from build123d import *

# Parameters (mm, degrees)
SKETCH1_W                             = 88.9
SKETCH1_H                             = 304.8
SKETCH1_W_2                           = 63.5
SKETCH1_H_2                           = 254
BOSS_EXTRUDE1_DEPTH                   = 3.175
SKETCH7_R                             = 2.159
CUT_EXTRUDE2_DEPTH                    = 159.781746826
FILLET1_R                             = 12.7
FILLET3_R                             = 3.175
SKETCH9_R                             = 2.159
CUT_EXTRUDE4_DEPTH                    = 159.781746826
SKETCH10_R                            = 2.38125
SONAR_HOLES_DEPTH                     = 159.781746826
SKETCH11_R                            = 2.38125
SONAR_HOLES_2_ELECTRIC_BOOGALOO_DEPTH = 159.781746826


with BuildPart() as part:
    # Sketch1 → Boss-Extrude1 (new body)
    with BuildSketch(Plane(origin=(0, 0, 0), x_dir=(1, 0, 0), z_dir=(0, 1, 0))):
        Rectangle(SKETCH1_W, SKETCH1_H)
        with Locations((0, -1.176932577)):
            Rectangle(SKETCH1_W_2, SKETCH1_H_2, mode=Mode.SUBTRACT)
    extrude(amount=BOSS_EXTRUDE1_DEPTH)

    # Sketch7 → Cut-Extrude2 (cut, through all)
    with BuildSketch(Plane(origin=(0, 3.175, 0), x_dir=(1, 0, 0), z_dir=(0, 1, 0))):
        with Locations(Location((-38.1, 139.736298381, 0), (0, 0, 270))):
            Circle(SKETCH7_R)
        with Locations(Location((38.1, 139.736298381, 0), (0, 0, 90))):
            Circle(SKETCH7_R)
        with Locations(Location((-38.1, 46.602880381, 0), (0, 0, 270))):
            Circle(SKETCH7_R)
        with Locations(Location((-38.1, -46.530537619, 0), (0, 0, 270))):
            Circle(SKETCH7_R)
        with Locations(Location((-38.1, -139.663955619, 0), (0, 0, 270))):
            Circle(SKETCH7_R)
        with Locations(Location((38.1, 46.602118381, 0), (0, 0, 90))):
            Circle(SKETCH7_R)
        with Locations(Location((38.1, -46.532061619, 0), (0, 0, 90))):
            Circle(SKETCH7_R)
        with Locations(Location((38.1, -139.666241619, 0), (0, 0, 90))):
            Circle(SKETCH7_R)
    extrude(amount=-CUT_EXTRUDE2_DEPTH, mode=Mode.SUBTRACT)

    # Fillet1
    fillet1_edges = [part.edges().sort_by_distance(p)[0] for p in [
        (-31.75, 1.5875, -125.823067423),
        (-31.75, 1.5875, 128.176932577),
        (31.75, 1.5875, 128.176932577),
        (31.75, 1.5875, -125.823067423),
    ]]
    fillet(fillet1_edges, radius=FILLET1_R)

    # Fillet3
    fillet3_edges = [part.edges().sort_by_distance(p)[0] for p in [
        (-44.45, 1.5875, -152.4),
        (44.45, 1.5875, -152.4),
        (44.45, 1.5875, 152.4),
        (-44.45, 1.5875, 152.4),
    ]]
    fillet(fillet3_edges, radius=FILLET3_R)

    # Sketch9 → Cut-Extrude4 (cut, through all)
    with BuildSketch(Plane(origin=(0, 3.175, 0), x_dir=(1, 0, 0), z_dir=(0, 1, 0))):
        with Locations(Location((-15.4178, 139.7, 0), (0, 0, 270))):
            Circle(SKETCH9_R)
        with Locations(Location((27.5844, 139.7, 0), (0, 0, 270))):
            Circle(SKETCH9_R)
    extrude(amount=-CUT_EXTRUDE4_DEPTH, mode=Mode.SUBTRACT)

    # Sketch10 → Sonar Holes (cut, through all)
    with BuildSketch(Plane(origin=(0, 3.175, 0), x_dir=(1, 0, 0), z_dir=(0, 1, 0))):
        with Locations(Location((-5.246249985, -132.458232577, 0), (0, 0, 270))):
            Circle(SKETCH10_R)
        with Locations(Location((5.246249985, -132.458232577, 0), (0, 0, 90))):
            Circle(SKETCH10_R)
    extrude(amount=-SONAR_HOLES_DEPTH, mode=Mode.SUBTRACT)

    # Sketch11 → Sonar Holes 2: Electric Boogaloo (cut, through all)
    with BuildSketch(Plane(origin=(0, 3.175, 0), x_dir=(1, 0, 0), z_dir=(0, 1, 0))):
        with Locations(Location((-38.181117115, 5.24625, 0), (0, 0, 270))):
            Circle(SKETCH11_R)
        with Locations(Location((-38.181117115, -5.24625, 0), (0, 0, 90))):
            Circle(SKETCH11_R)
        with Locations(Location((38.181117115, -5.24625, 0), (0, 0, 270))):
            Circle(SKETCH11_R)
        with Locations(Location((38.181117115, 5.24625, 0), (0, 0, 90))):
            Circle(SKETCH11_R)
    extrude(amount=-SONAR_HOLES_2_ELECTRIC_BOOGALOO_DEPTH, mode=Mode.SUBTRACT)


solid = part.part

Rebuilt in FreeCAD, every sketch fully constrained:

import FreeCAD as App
import Part
import Sketcher

V = App.Vector
Q = App.Units.Quantity


def edges_at(feature, points):
    """Names of the edges that pass closest to the given points."""
    edges = feature.Shape.Edges
    near = lambda p: min(range(len(edges)), key=lambda i: edges[i].distToShape(Part.Vertex(*p))[0])
    return sorted({f"Edge{near(p) + 1}" for p in points})


def add_polygon(sketch, points):
    """Adds a closed chain of lines whose ends are joined by coincident constraints."""
    first, n = sketch.GeometryCount, len(points)
    for a, b in zip(points, points[1:] + points[:1]):
        sketch.addGeometry(Part.LineSegment(App.Vector(*a, 0), App.Vector(*b, 0)), False)
    for i in range(n):
        sketch.addConstraint(Sketcher.Constraint("Coincident", first + i, 2, first + (i + 1) % n, 1))

doc = App.newDocument("Part")
params = doc.addObject("Spreadsheet::Sheet", "Params")
for row, (alias, value) in enumerate([
    ("sketch1_height", "12 in"),
    ("sketch1_height2", "10 in"),
    ("sketch1_width", "3.5 in"),
    ("sketch1_width2", "2.5 in"),
    ("pad1_length", "0.125 in"),
    ("sketch2_diameter", "0.17 in"),
    ("fillet_radius", "0.5 in"),
    ("fillet2_radius", "0.125 in"),
    ("sketch3_diameter", "0.17 in"),
    ("sketch4_diameter", "0.1875 in"),
    ("sketch5_diameter", "0.1875 in"),
], start=1):
    params.set(f"A{row}", alias)
    params.set(f"B{row}", "=" + value)
    params.setAlias(f"B{row}", alias)

body = doc.addObject("PartDesign::Body", "Body")

# Sketch on XZ plane
sketch1 = doc.addObject("Sketcher::SketchObject", "Sketch")
body.addObject(sketch1)
sketch1.AttachmentSupport = (doc.XZ_Plane, [""])
sketch1.MapMode = "FlatFace"
add_polygon(sketch1, [(-44, -152), (-44, 152), (44, 152), (44, -152)])  # lines 0-3
add_polygon(sketch1, [(32, 128), (-32, 128), (-32, -126), (32, -126)])  # lines 4-7
sketch1.addConstraint([
    Sketcher.Constraint("Vertical", 0),
    Sketcher.Constraint("Horizontal", 1),
    Sketcher.Constraint("Vertical", 2),
    Sketcher.Constraint("Horizontal", 3),
    Sketcher.Constraint("Horizontal", 4),
    Sketcher.Constraint("Vertical", 5),
    Sketcher.Constraint("Horizontal", 6),
    Sketcher.Constraint("Vertical", 7),
    Sketcher.Constraint("Symmetric", 0, 2, 2, 2, -1, 1),
    Sketcher.Constraint("DistanceY", 0, 1, 0, 2, Q("12 in")),
    Sketcher.Constraint("DistanceY", 5, 2, 5, 1, Q("10 in")),
    Sketcher.Constraint("DistanceX", 1, 1, 1, 2, Q("3.5 in")),
    Sketcher.Constraint("DistanceX", 4, 2, 4, 1, Q("2.5 in")),
    Sketcher.Constraint("DistanceX", 4, 2, 1, 2, Q("3 in")),
    Sketcher.Constraint("DistanceY", -1, 1, 4, 2, 128.176933),
])
sketch1.setExpression("Constraints[17]", "Params.sketch1_height")
sketch1.setExpression("Constraints[18]", "Params.sketch1_height2")
sketch1.setExpression("Constraints[19]", "Params.sketch1_width")
sketch1.setExpression("Constraints[20]", "Params.sketch1_width2")
pad1 = doc.addObject("PartDesign::Pad", "Pad")
body.addObject(pad1)
pad1.Profile = sketch1
pad1.setExpression("Length", "Params.pad1_length")
pad1.Reversed = True

# Sketch on XZ plane
sketch2 = doc.addObject("Sketcher::SketchObject", "Sketch001")
body.addObject(sketch2)
sketch2.AttachmentSupport = (doc.XZ_Plane, [""])
sketch2.MapMode = "FlatFace"
sketch2.AttachmentOffset = App.Placement(V(0, 0, -0.125 * 25.4), App.Rotation())
sketch2.addGeometry([
    Part.Circle(V(-38.1, -139.7, 0), V(0, 0, 1), 2.2),  # 0
    Part.Circle(V(38.1, -139.7, 0), V(0, 0, 1), 2.2),  # 1
    Part.Circle(V(-38.1, -46.6, 0), V(0, 0, 1), 2.2),  # 2
    Part.Circle(V(-38.1, 46.5, 0), V(0, 0, 1), 2.2),  # 3
    Part.Circle(V(-38.1, 139.7, 0), V(0, 0, 1), 2.2),  # 4
    Part.Circle(V(38.1, -46.6, 0), V(0, 0, 1), 2.2),  # 5
    Part.Circle(V(38.1, 46.5, 0), V(0, 0, 1), 2.2),  # 6
    Part.Circle(V(38.1, 139.7, 0), V(0, 0, 1), 2.2),  # 7
], False)
sketch2.addConstraint([
    Sketcher.Constraint("Equal", 0, 1),
    Sketcher.Constraint("Equal", 1, 2),
    Sketcher.Constraint("Equal", 2, 3),
    Sketcher.Constraint("Equal", 3, 4),
    Sketcher.Constraint("Equal", 4, 5),
    Sketcher.Constraint("Equal", 5, 6),
    Sketcher.Constraint("Equal", 6, 7),
    Sketcher.Constraint("Symmetric", 0, 3, 1, 3, -2),
    Sketcher.Constraint("Vertical", 0, 3, 2, 3),
    Sketcher.Constraint("Vertical", 2, 3, 3, 3),
    Sketcher.Constraint("Vertical", 3, 3, 4, 3),
    Sketcher.Constraint("Vertical", 1, 3, 5, 3),
    Sketcher.Constraint("Vertical", 5, 3, 6, 3),
    Sketcher.Constraint("Vertical", 6, 3, 7, 3),
    Sketcher.Constraint("Diameter", 0, Q("0.17 in")),
    Sketcher.Constraint("DistanceX", 0, 3, 1, 3, Q("3 in")),
    Sketcher.Constraint("DistanceY", 1, 3, 5, 3, Q("3.6667 in")),
    Sketcher.Constraint("DistanceY", 5, 3, 6, 3, Q("3.6667 in")),
    Sketcher.Constraint("DistanceY", 6, 3, 7, 3, Q("3.6667 in")),
    Sketcher.Constraint("DistanceY", 0, 3, -1, 1, 139.736298),
    Sketcher.Constraint("DistanceY", 2, 3, -1, 1, 46.60288),
    Sketcher.Constraint("DistanceY", 2, 3, 3, 3, 93.133418),
    Sketcher.Constraint("DistanceY", 3, 3, 4, 3, 93.133418),
])
sketch2.setExpression("Constraints[14]", "Params.sketch2_diameter")
pocket1 = doc.addObject("PartDesign::Pocket", "Pocket")
body.addObject(pocket1)
pocket1.Profile = sketch2
pocket1.Type = "ThroughAll"
pocket1.Reversed = True
doc.recompute()

fillet = doc.addObject("PartDesign::Fillet", "Fillet")
body.addObject(fillet)
fillet.Base = (pocket1, edges_at(pocket1, [
    (-31.75, 1.587, -125.823),
    (-31.75, 1.587, 128.177),
    (31.75, 1.587, 128.177),
    (31.75, 1.587, -125.823),
]))
fillet.setExpression("Radius", "Params.fillet_radius")
doc.recompute()

fillet2 = doc.addObject("PartDesign::Fillet", "Fillet001")
body.addObject(fillet2)
fillet2.Base = (fillet, edges_at(fillet, [
    (-44.45, 1.587, -152.4),
    (44.45, 1.587, -152.4),
    (44.45, 1.587, 152.4),
    (-44.45, 1.587, 152.4),
]))
fillet2.setExpression("Radius", "Params.fillet2_radius")

# Sketch on XZ plane
sketch3 = doc.addObject("Sketcher::SketchObject", "Sketch002")
body.addObject(sketch3)
sketch3.AttachmentSupport = (doc.XZ_Plane, [""])
sketch3.MapMode = "FlatFace"
sketch3.AttachmentOffset = App.Placement(V(0, 0, -0.125 * 25.4), App.Rotation())
sketch3.addGeometry([
    Part.Circle(V(-15.4, -139.7, 0), V(0, 0, 1), 2.2),
    Part.Circle(V(27.6, -139.7, 0), V(0, 0, 1), 2.2),
], False)
sketch3.addConstraint([
    Sketcher.Constraint("Equal", 0, 1),
    Sketcher.Constraint("Horizontal", 0, 3, 1, 3),
    Sketcher.Constraint("Diameter", 0, Q("0.17 in")),
    Sketcher.Constraint("DistanceY", 0, 3, -1, 1, Q("5.5 in")),
    Sketcher.Constraint("DistanceX", 0, 3, -1, 1, Q("0.607 in")),
    Sketcher.Constraint("DistanceX", -1, 1, 1, 3, Q("1.086 in")),
])
sketch3.setExpression("Constraints[2]", "Params.sketch3_diameter")
pocket2 = doc.addObject("PartDesign::Pocket", "Pocket001")
body.addObject(pocket2)
pocket2.Profile = sketch3
pocket2.Type = "ThroughAll"
pocket2.Reversed = True

# Sketch on XZ plane
sketch4 = doc.addObject("Sketcher::SketchObject", "Sketch003")
body.addObject(sketch4)
sketch4.AttachmentSupport = (doc.XZ_Plane, [""])
sketch4.MapMode = "FlatFace"
sketch4.AttachmentOffset = App.Placement(V(0, 0, -0.125 * 25.4), App.Rotation())
sketch4.addGeometry([
    Part.Circle(V(-5.2, 132.5, 0), V(0, 0, 1), 2.4),
    Part.Circle(V(5.2, 132.5, 0), V(0, 0, 1), 2.4),
], False)
sketch4.addConstraint([
    Sketcher.Constraint("Equal", 0, 1),
    Sketcher.Constraint("Symmetric", 0, 3, 1, 3, -2),
    Sketcher.Constraint("Diameter", 0, Q("0.1875 in")),
    Sketcher.Constraint("DistanceX", 0, 3, 1, 3, 10.4925),
    Sketcher.Constraint("DistanceY", -1, 1, 0, 3, 132.458233),
])
sketch4.setExpression("Constraints[2]", "Params.sketch4_diameter")
pocket3 = doc.addObject("PartDesign::Pocket", "Pocket002")
body.addObject(pocket3)
pocket3.Profile = sketch4
pocket3.Type = "ThroughAll"
pocket3.Reversed = True

# Sketch on XZ plane
sketch5 = doc.addObject("Sketcher::SketchObject", "Sketch004")
body.addObject(sketch5)
sketch5.AttachmentSupport = (doc.XZ_Plane, [""])
sketch5.MapMode = "FlatFace"
sketch5.AttachmentOffset = App.Placement(V(0, 0, -0.125 * 25.4), App.Rotation())
sketch5.addGeometry([
    Part.Circle(V(-38.2, -5.2, 0), V(0, 0, 1), 2.4),
    Part.Circle(V(-38.2, 5.2, 0), V(0, 0, 1), 2.4),
    Part.Circle(V(38.2, 5.2, 0), V(0, 0, 1), 2.4),
    Part.Circle(V(38.2, -5.2, 0), V(0, 0, 1), 2.4),
], False)
sketch5.addConstraint([
    Sketcher.Constraint("Equal", 0, 1),
    Sketcher.Constraint("Equal", 1, 2),
    Sketcher.Constraint("Equal", 2, 3),
    Sketcher.Constraint("Symmetric", 0, 3, 2, 3, -1, 1),
    Sketcher.Constraint("Symmetric", 1, 3, 3, 3, -1, 1),
    Sketcher.Constraint("Symmetric", 1, 3, 2, 3, -2),
    Sketcher.Constraint("Diameter", 0, Q("0.1875 in")),
    Sketcher.Constraint("DistanceY", 0, 3, 1, 3, 10.4925),
    Sketcher.Constraint("DistanceX", 0, 3, -1, 1, 38.181117),
])
sketch5.setExpression("Constraints[6]", "Params.sketch5_diameter")
pocket4 = doc.addObject("PartDesign::Pocket", "Pocket003")
body.addObject(pocket4)
pocket4.Profile = sketch5
pocket4.Type = "ThroughAll"
pocket4.Reversed = True

doc.recompute()
